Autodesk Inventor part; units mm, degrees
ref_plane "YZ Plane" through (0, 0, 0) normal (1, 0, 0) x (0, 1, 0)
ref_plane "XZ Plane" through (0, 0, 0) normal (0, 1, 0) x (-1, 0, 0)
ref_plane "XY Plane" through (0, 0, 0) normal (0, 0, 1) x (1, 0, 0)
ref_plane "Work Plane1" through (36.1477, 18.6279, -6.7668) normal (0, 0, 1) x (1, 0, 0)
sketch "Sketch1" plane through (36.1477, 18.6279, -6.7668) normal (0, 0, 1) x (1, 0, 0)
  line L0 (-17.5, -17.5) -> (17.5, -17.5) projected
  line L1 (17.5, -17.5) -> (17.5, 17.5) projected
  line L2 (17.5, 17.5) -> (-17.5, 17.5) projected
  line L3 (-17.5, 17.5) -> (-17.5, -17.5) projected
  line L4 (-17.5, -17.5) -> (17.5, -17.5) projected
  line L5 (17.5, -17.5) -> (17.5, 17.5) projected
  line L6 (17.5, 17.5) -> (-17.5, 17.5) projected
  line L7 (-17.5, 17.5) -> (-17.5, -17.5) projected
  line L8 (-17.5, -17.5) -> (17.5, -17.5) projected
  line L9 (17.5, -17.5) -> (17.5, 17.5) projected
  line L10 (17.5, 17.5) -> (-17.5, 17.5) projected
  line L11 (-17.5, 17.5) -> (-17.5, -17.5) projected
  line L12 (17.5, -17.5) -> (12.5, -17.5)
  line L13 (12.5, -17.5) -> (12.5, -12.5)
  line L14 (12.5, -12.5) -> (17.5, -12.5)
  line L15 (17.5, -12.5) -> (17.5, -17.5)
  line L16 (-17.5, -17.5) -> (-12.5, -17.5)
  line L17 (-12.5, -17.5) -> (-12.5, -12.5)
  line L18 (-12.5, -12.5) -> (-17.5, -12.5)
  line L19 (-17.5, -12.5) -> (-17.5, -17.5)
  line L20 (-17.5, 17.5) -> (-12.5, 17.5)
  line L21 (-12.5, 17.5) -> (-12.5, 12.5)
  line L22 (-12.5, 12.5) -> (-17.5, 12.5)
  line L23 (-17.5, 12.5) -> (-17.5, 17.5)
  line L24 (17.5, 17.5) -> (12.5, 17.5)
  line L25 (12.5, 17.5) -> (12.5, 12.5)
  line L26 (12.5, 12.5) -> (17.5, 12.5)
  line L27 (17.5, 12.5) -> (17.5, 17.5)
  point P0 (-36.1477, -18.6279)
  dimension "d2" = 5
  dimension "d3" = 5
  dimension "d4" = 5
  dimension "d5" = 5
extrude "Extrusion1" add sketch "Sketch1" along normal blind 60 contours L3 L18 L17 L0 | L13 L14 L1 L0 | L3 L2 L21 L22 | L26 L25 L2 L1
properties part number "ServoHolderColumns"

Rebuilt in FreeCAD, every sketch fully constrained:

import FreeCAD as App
import Part
import Sketcher

V = App.Vector


def add_polygon(sketch, points):
    """Adds a closed chain of lines whose ends are joined by coincident constraints."""
    first, n = sketch.GeometryCount, len(points)
    for a, b in zip(points, points[1:] + points[:1]):
        sketch.addGeometry(Part.LineSegment(App.Vector(*a, 0), App.Vector(*b, 0)), False)
    for i in range(n):
        sketch.addConstraint(Sketcher.Constraint("Coincident", first + i, 2, first + (i + 1) % n, 1))

doc = App.newDocument("Part")
body = doc.addObject("PartDesign::Body", "Body")
body.AllowCompound = True

sketch1 = body.newObject("Sketcher::SketchObject", "Sketch")
sketch1.AttachmentSupport = (doc.getObject("XY_Plane"), [""])
sketch1.MapMode = "FlatFace"
sketch1.AttachmentOffset = App.Placement(V(0, 0, -6.7668), App.Rotation())
add_polygon(sketch1, [(18.6, 6.1), (18.6, 1.1), (23.6, 1.1), (23.6, 6.1)])
add_polygon(sketch1, [(48.6, 6.1), (48.6, 1.1), (53.6, 1.1), (53.6, 6.1)])
add_polygon(sketch1, [(18.6, 36.1), (18.6, 31.1), (23.6, 31.1), (23.6, 36.1)])
add_polygon(sketch1, [(48.6, 31.1), (53.6, 31.1), (53.6, 36.1), (48.6, 36.1)])
sketch1.addConstraint(Sketcher.Constraint("Vertical", 0))
sketch1.addConstraint(Sketcher.Constraint("Horizontal", 1))
sketch1.addConstraint(Sketcher.Constraint("Vertical", 2))
sketch1.addConstraint(Sketcher.Constraint("Horizontal", 3))
sketch1.addConstraint(Sketcher.Constraint("Vertical", 4))
sketch1.addConstraint(Sketcher.Constraint("Horizontal", 5))
sketch1.addConstraint(Sketcher.Constraint("Vertical", 6))
sketch1.addConstraint(Sketcher.Constraint("Horizontal", 7))
sketch1.addConstraint(Sketcher.Constraint("Vertical", 8))
sketch1.addConstraint(Sketcher.Constraint("Horizontal", 9))
sketch1.addConstraint(Sketcher.Constraint("Vertical", 10))
sketch1.addConstraint(Sketcher.Constraint("Horizontal", 11))
sketch1.addConstraint(Sketcher.Constraint("Horizontal", 12))
sketch1.addConstraint(Sketcher.Constraint("Vertical", 13))
sketch1.addConstraint(Sketcher.Constraint("Horizontal", 14))
sketch1.addConstraint(Sketcher.Constraint("Vertical", 15))
sketch1.addConstraint(Sketcher.Constraint("Horizontal", 1, 2, 4, 2))
sketch1.addConstraint(Sketcher.Constraint("Horizontal", 3, 2, 6, 2))
sketch1.addConstraint(Sketcher.Constraint("Horizontal", 9, 2, 12, 2))
sketch1.addConstraint(Sketcher.Constraint("Horizontal", 11, 2, 13, 2))
sketch1.addConstraint(Sketcher.Constraint("Vertical", 3, 2, 8, 2))
sketch1.addConstraint(Sketcher.Constraint("Vertical", 2, 2, 9, 2))
sketch1.addConstraint(Sketcher.Constraint("Vertical", 6, 2, 12, 2))
sketch1.addConstraint(Sketcher.Constraint("Vertical", 7, 2, 14, 2))
sketch1.addConstraint(Sketcher.Constraint("Equal", 3, 5))
sketch1.addConstraint(Sketcher.Constraint("Equal", 14, 0))
sketch1.addConstraint(Sketcher.Constraint("Equal", 6, 8))
sketch1.addConstraint(Sketcher.Constraint("DistanceX", 1, 1, 1, 2, 5.0))
sketch1.addConstraint(Sketcher.Constraint("DistanceX", 1, 2, 4, 2, 25.0))
sketch1.addConstraint(Sketcher.Constraint("DistanceY", 3, 2, 8, 2, 25.0))
sketch1.addConstraint(Sketcher.Constraint("DistanceY", -1, 1, 0, 2, 1.128))
sketch1.addConstraint(Sketcher.Constraint("DistanceX", -1, 1, 0, 2, 18.6477))
pad1 = body.newObject("PartDesign::Pad", "Pad")
pad1.Profile = sketch1
pad1.Length = 60

doc.recompute()
